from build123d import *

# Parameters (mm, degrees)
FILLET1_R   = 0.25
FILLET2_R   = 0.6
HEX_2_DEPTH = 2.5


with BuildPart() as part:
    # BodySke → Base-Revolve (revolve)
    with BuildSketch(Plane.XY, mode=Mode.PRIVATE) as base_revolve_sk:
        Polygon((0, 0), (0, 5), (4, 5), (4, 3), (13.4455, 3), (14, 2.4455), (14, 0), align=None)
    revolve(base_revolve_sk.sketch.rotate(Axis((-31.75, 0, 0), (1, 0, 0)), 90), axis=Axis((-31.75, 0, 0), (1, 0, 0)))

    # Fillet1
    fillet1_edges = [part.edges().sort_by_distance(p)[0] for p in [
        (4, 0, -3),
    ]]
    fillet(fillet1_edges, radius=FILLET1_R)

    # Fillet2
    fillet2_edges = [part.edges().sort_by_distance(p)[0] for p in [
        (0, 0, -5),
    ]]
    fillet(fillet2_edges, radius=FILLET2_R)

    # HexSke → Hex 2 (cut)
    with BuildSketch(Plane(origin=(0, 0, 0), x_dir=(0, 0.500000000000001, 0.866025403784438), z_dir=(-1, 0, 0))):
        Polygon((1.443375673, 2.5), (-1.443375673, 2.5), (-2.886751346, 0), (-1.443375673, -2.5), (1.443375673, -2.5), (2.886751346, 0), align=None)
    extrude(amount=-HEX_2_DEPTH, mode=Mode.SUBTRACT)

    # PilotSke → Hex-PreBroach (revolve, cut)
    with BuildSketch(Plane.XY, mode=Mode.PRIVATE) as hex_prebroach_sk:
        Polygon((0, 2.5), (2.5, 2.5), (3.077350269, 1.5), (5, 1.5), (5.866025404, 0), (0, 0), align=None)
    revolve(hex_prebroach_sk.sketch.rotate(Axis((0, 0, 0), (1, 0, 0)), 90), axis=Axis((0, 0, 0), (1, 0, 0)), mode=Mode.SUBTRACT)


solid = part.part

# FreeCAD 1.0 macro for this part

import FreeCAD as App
import Part
import Sketcher

V = App.Vector
Q = App.Units.Quantity


def edges_at(feature, points):
    """Names of the edges that pass closest to the given points."""
    edges = feature.Shape.Edges
    near = lambda p: min(range(len(edges)), key=lambda i: edges[i].distToShape(Part.Vertex(*p))[0])
    return sorted({f"Edge{near(p) + 1}" for p in points})

doc = App.newDocument("Part")
body = doc.addObject("PartDesign::Body", "Body")

sketch1 = body.newObject("Sketcher::SketchObject", "Sketch")
sketch1.AttachmentSupport = (doc.getObject("XY_Plane"), [""])
sketch1.MapMode = "FlatFace"
sketch1.addGeometry([
    Part.LineSegment(V(0, 5, 0), V(0, 0, 0)),
    Part.LineSegment(V(0, 0, 0), V(14, 0, 0)),
    Part.LineSegment(V(14, 0, 0), V(14, 2.4, 0)),
    Part.LineSegment(V(14, 2.4, 0), V(13.4, 3, 0)),
    Part.LineSegment(V(13.4, 3, 0), V(4, 3, 0)),
    Part.LineSegment(V(4, 3, 0), V(4, 5, 0)),
    Part.LineSegment(V(4, 5, 0), V(0, 5, 0)),
], False)
sketch1.addConstraint([
    Sketcher.Constraint("Coincident", 0, 2, 1, 1),
    Sketcher.Constraint("Coincident", 1, 2, 2, 1),
    Sketcher.Constraint("Coincident", 2, 2, 3, 1),
    Sketcher.Constraint("Coincident", 3, 2, 4, 1),
    Sketcher.Constraint("Coincident", 4, 2, 5, 1),
    Sketcher.Constraint("Coincident", 5, 2, 6, 1),
    Sketcher.Constraint("Coincident", 6, 2, 0, 1),
    Sketcher.Constraint("Vertical", 0),
    Sketcher.Constraint("Horizontal", 1),
    Sketcher.Constraint("Vertical", 2),
    Sketcher.Constraint("Horizontal", 4),
    Sketcher.Constraint("Vertical", 5),
    Sketcher.Constraint("Horizontal", 6),
    Sketcher.Constraint("Coincident", 0, 2, -1, 1),
    Sketcher.Constraint("DistanceX", 1, 1, 1, 2, Q("14 mm")),
    Sketcher.Constraint("DistanceX", 6, 2, 6, 1, Q("4 mm")),
    Sketcher.Constraint("DistanceY", 0, 2, 0, 1, Q("5 mm")),
    Sketcher.Constraint("DistanceY", 5, 1, 5, 2, Q("2 mm")),
    Sketcher.Constraint("Angle", 3, Q("135 deg")),
    Sketcher.Constraint("DistanceX", 4, 2, 4, 1, Q("9.4455 mm")),
])
revolution = body.newObject("PartDesign::Revolution", "Revolution")
revolution.Profile = sketch1
revolution.ReferenceAxis = (sketch1, ["H_Axis"])
revolution.Angle = 360
doc.recompute()

fillet = body.newObject("PartDesign::Fillet", "Fillet")
fillet.Base = (revolution, edges_at(revolution, [(4, 0, -3)]))
fillet.Radius = 0.25
doc.recompute()

fillet2 = body.newObject("PartDesign::Fillet", "Fillet001")
fillet2.Base = (fillet, edges_at(fillet, [(0, 0, -5)]))
fillet2.Radius = 0.6

sketch2 = body.newObject("Sketcher::SketchObject", "Sketch001")
sketch2.AttachmentSupport = (doc.getObject("YZ_Plane"), [""])
sketch2.MapMode = "FlatFace"
sketch2.addGeometry([
    Part.LineSegment(V(2.9, 0, 0), V(1.4, -2.5, 0)),
    Part.LineSegment(V(1.4, -2.5, 0), V(-1.4, -2.5, 0)),
    Part.LineSegment(V(-1.4, -2.5, 0), V(-2.9, 0, 0)),
    Part.LineSegment(V(-2.9, 0, 0), V(-1.4, 2.5, 0)),
    Part.LineSegment(V(-1.4, 2.5, 0), V(1.4, 2.5, 0)),
    Part.LineSegment(V(1.4, 2.5, 0), V(2.9, 0, 0)),
], False)
sketch2.addConstraint([
    Sketcher.Constraint("Coincident", 0, 2, 1, 1),
    Sketcher.Constraint("Coincident", 1, 2, 2, 1),
    Sketcher.Constraint("Coincident", 2, 2, 3, 1),
    Sketcher.Constraint("Coincident", 3, 2, 4, 1),
    Sketcher.Constraint("Coincident", 4, 2, 5, 1),
    Sketcher.Constraint("Coincident", 5, 2, 0, 1),
    Sketcher.Constraint("Horizontal", 1),
    Sketcher.Constraint("Horizontal", 4),
    Sketcher.Constraint("Symmetric", 0, 2, 3, 2, -1, 1),
    Sketcher.Constraint("Symmetric", 2, 2, 5, 2, -1, 1),
    Sketcher.Constraint("PointOnObject", 2, 2, -1),
    Sketcher.Constraint("Parallel", 2, 5),
    Sketcher.Constraint("Vertical", 1, 2, 3, 2),
    Sketcher.Constraint("Angle", 0, Q("-120 deg")),
    Sketcher.Constraint("DistanceY", 1, 2, 3, 2, Q("5 mm")),
    Sketcher.Constraint("DistanceX", 1, 2, 1, 1, Q("2.886751 mm")),
])
pocket1 = body.newObject("PartDesign::Pocket", "Pocket")
pocket1.Profile = sketch2
pocket1.Length = 2.5
pocket1.Reversed = True

sketch3 = body.newObject("Sketcher::SketchObject", "Sketch002")
sketch3.AttachmentSupport = (doc.getObject("XY_Plane"), [""])
sketch3.MapMode = "FlatFace"
sketch3.addGeometry([
    Part.LineSegment(V(2.5, 2.5, 0), V(0, 2.5, 0)),
    Part.LineSegment(V(0, 2.5, 0), V(0, 0, 0)),
    Part.LineSegment(V(0, 0, 0), V(5.9, 0, 0)),
    Part.LineSegment(V(5.9, 0, 0), V(5, 1.5, 0)),
    Part.LineSegment(V(5, 1.5, 0), V(3.1, 1.5, 0)),
    Part.LineSegment(V(3.1, 1.5, 0), V(2.5, 2.5, 0)),
], False)
sketch3.addConstraint([
    Sketcher.Constraint("Coincident", 0, 2, 1, 1),
    Sketcher.Constraint("Coincident", 1, 2, 2, 1),
    Sketcher.Constraint("Coincident", 2, 2, 3, 1),
    Sketcher.Constraint("Coincident", 3, 2, 4, 1),
    Sketcher.Constraint("Coincident", 4, 2, 5, 1),
    Sketcher.Constraint("Coincident", 5, 2, 0, 1),
    Sketcher.Constraint("Horizontal", 0),
    Sketcher.Constraint("Vertical", 1),
    Sketcher.Constraint("Horizontal", 2),
    Sketcher.Constraint("Horizontal", 4),
    Sketcher.Constraint("Coincident", 1, 2, -1, 1),
    Sketcher.Constraint("Parallel", 3, 5),
    Sketcher.Constraint("Equal", 0, 1),
    Sketcher.Constraint("Angle", 3, Q("120 deg")),
    Sketcher.Constraint("DistanceX", 0, 2, 0, 1, Q("2.5 mm")),
    Sketcher.Constraint("DistanceX", -1, 1, 3, 2, Q("5 mm")),
    Sketcher.Constraint("DistanceY", 3, 2, 0, 2, Q("1 mm")),
])
groove = body.newObject("PartDesign::Groove", "Groove")
groove.Profile = sketch3
groove.ReferenceAxis = (sketch3, ["H_Axis"])
groove.Angle = 360

doc.recompute()
